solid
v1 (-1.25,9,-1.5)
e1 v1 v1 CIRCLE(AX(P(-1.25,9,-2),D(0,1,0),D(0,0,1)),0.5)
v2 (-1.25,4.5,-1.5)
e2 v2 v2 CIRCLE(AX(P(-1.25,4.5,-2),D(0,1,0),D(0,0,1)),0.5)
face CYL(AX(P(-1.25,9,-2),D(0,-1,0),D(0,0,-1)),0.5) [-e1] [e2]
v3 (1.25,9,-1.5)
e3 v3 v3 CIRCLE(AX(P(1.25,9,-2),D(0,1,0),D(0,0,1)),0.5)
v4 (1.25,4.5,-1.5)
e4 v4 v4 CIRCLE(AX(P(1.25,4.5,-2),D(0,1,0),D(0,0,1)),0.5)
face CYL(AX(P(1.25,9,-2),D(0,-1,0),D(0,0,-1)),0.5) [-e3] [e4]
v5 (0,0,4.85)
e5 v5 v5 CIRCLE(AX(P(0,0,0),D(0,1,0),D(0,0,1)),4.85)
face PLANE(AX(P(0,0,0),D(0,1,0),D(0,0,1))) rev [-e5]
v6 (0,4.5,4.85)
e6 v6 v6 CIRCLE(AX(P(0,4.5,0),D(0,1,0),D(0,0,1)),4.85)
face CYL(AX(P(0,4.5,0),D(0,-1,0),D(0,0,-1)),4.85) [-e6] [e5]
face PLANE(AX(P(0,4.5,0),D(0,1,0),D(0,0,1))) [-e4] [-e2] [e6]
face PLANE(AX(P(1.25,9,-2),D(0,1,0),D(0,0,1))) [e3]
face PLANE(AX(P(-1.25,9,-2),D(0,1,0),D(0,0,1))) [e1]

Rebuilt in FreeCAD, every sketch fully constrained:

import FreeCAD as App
import Part
import Sketcher

V = App.Vector

doc = App.newDocument("Part")
body = doc.addObject("PartDesign::Body", "Body")

# Sketch on XZ plane
sketch1 = body.newObject("Sketcher::SketchObject", "Sketch")
sketch1.AttachmentSupport = (doc.getObject("XZ_Plane"), [""])
sketch1.MapMode = "FlatFace"
sketch1.addGeometry(Part.Circle(V(0, 0, 0), V(0, 0, 1), 4.85), False)
sketch1.addConstraint(Sketcher.Constraint("Coincident", 0, 3, -1, 1))
sketch1.addConstraint(Sketcher.Constraint("Diameter", 0, 9.7))
pad1 = body.newObject("PartDesign::Pad", "Pad")
pad1.Profile = sketch1
pad1.Length = 4.5
pad1.Reversed = True

# Sketch on XZ plane
sketch2 = body.newObject("Sketcher::SketchObject", "Sketch001")
sketch2.AttachmentSupport = (doc.getObject("XZ_Plane"), [""])
sketch2.MapMode = "FlatFace"
sketch2.AttachmentOffset = App.Placement(V(0, 0, -4.5), App.Rotation())
sketch2.addGeometry(Part.Circle(V(1.25, -2, 0), V(0, 0, 1), 0.5), False)
sketch2.addGeometry(Part.Circle(V(-1.25, -2, 0), V(0, 0, 1), 0.5), False)
sketch2.addConstraint(Sketcher.Constraint("Equal", 0, 1))
sketch2.addConstraint(Sketcher.Constraint("Symmetric", 0, 3, 1, 3, -2))
sketch2.addConstraint(Sketcher.Constraint("Diameter", 0, 1.0))
sketch2.addConstraint(Sketcher.Constraint("DistanceY", 0, 3, -1, 1, 2.0))
sketch2.addConstraint(Sketcher.Constraint("DistanceX", 1, 3, 0, 3, 2.5))
pad2 = body.newObject("PartDesign::Pad", "Pad001")
pad2.Profile = sketch2
pad2.Length = 4.5
pad2.Reversed = True

doc.recompute()
